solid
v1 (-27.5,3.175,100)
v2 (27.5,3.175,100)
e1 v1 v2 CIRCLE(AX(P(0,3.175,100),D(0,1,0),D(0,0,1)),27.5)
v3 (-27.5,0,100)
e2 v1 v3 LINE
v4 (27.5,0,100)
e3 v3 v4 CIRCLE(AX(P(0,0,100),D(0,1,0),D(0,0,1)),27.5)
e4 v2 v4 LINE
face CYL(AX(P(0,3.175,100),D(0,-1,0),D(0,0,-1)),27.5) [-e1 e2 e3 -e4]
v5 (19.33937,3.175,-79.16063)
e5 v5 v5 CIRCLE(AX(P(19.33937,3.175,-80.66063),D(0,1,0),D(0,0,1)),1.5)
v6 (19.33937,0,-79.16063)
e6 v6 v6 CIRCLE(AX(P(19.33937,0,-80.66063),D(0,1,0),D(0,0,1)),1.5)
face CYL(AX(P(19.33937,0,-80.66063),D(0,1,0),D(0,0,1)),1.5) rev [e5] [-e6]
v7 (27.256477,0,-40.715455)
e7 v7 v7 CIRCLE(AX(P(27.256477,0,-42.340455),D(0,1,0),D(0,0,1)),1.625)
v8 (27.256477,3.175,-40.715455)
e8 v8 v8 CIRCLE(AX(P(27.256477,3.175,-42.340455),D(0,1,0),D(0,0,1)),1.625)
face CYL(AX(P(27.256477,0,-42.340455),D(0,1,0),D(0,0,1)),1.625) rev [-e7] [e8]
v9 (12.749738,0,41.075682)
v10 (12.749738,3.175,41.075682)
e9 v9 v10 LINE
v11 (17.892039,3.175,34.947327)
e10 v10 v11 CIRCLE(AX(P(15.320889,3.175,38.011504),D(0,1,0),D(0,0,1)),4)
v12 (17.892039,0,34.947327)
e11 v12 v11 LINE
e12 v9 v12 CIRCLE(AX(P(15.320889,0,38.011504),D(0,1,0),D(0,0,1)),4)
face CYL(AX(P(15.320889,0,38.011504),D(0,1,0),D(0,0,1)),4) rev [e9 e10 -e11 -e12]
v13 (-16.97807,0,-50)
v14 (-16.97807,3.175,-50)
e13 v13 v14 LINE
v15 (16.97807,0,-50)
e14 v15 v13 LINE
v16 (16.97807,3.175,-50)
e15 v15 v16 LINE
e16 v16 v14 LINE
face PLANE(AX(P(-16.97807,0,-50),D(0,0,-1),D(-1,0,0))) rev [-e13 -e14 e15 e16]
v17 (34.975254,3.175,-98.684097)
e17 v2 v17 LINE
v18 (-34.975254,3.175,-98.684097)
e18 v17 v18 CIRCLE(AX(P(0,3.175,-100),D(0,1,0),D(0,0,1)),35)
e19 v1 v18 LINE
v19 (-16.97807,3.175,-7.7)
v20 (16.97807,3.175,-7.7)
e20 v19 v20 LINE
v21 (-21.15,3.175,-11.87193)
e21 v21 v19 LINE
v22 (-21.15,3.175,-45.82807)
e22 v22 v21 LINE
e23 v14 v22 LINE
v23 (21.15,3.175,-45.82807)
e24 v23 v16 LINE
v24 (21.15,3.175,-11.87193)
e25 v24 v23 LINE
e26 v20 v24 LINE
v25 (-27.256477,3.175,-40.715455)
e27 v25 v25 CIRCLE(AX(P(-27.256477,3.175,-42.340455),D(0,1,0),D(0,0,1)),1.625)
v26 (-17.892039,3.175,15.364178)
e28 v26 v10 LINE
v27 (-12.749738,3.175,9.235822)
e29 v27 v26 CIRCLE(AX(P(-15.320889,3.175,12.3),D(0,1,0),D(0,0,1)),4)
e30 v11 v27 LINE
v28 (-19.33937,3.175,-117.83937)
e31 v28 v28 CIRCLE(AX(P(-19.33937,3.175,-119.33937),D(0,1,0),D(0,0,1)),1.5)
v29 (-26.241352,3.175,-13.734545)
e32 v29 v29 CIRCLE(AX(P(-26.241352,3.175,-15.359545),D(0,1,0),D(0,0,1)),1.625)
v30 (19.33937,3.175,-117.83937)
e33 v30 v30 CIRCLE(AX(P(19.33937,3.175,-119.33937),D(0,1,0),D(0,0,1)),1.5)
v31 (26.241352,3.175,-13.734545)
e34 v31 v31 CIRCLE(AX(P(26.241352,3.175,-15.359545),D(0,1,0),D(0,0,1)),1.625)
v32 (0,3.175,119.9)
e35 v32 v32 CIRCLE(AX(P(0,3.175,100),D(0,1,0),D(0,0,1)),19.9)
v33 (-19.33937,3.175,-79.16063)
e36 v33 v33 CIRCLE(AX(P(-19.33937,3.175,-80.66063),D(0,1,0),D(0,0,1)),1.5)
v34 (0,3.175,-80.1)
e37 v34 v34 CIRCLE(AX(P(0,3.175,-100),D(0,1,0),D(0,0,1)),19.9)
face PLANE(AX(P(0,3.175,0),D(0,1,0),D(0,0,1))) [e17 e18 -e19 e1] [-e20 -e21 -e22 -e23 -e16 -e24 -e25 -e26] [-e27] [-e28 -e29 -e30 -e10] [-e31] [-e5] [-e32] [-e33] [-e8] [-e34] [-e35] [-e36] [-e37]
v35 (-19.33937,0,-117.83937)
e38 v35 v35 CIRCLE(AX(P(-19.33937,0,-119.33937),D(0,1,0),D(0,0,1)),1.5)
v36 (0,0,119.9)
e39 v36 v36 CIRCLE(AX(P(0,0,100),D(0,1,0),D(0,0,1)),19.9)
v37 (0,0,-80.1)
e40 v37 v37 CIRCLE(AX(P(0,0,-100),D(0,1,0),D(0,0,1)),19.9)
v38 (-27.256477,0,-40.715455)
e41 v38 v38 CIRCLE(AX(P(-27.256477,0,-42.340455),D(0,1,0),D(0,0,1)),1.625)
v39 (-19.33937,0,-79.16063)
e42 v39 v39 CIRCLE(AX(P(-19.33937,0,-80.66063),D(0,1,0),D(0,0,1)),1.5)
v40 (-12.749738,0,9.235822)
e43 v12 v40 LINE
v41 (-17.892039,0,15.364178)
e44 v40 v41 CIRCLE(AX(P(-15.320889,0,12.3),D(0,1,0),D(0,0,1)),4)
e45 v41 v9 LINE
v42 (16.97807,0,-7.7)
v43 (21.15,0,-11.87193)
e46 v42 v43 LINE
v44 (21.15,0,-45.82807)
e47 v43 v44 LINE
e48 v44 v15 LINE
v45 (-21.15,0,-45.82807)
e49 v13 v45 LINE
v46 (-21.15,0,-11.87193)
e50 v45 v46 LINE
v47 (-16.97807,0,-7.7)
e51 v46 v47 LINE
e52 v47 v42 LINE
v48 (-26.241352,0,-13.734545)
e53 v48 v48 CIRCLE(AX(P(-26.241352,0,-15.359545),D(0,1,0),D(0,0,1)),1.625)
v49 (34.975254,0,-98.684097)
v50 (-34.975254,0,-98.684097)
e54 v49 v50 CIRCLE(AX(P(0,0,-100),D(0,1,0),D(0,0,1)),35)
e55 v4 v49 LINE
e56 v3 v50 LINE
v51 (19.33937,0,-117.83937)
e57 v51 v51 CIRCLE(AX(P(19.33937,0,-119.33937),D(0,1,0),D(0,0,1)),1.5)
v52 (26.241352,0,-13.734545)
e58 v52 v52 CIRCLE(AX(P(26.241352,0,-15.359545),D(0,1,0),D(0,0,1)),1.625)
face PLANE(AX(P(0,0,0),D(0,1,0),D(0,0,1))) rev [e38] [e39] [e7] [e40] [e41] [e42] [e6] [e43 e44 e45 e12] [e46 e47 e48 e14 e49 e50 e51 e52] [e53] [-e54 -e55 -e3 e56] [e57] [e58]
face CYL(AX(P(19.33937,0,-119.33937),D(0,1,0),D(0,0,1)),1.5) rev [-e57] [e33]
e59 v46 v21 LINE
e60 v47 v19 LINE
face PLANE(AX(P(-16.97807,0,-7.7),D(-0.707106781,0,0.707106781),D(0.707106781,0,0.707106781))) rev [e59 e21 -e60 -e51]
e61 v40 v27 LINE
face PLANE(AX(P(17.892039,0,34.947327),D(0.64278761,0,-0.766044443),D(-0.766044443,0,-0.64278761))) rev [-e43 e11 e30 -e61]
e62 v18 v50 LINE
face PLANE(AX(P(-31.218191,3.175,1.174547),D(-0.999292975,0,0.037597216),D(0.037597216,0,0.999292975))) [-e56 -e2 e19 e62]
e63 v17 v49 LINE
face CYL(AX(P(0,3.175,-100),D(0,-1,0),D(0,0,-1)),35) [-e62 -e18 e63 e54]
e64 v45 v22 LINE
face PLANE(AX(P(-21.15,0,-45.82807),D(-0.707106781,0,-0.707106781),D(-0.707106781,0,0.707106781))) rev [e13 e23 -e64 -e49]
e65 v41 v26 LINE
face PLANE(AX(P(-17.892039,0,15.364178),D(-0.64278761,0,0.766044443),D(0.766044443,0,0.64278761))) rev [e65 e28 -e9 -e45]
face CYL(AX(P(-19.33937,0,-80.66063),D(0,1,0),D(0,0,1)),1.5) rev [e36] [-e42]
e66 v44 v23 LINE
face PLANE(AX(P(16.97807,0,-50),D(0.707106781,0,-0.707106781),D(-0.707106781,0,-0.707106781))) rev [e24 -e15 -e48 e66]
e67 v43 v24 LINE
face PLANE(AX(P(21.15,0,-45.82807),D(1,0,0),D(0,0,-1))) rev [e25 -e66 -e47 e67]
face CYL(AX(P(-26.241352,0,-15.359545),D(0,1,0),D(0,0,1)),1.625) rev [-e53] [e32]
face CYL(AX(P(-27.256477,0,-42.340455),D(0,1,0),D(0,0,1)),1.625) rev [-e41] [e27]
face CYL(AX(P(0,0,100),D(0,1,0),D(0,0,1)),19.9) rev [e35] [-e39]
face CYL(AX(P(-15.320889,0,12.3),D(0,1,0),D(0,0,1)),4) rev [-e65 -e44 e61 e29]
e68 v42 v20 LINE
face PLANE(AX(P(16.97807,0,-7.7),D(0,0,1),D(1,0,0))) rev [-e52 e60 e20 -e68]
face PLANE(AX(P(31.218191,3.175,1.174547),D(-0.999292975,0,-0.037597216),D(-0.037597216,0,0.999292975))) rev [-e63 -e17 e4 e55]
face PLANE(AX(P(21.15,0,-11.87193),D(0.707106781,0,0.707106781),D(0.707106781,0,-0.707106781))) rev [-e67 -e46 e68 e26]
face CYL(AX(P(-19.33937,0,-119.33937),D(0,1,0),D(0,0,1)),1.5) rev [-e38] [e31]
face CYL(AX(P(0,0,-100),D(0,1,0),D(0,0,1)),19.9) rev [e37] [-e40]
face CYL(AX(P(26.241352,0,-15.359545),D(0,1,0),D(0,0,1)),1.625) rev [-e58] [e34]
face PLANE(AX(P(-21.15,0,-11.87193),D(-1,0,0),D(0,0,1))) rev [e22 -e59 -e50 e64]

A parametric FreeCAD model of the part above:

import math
import FreeCAD as App
import Part
import Sketcher
from FreeCAD import Vector
Q = App.Units.Quantity


def add_polygon(sketch, points):
    """Adds a closed chain of lines whose ends are joined by coincident constraints."""
    first, n = sketch.GeometryCount, len(points)
    for a, b in zip(points, points[1:] + points[:1]):
        sketch.addGeometry(Part.LineSegment(App.Vector(*a, 0), App.Vector(*b, 0)), False)
    for i in range(n):
        sketch.addConstraint(Sketcher.Constraint("Coincident", first + i, 2, first + (i + 1) % n, 1))

doc = App.newDocument("Part")
body = doc.addObject("PartDesign::Body", "Body")

sketch1 = body.newObject("Sketcher::SketchObject", "Sketch")
sketch1.AttachmentSupport = (doc.getObject("XZ_Plane"), [""])
sketch1.MapMode = "FlatFace"
sketch1.addGeometry([
    Part.LineSegment(Vector(-35, -99, 0), Vector(-28, 100, 0)),
    Part.ArcOfCircle(Part.Circle(Vector(0, 100, 0), Vector(0, 0, 1), 28), math.radians(0), math.radians(180)),
    Part.LineSegment(Vector(28, 100, 0), Vector(35, -99, 0)),
    Part.ArcOfCircle(Part.Circle(Vector(0, -100, 0), Vector(0, 0, 1), 35), math.radians(178), math.radians(362)),
], False)
sketch1.addConstraint([
    Sketcher.Constraint("Coincident", 0, 2, 1, 2),
    Sketcher.Constraint("Coincident", 1, 1, 2, 1),
    Sketcher.Constraint("Tangent", 2, 2, 3, 2),
    Sketcher.Constraint("Tangent", 3, 1, 0, 1),
    Sketcher.Constraint("Symmetric", 1, 3, 3, 3, -1, 1),
    Sketcher.Constraint("Symmetric", 0, 2, 1, 1, -2),
    Sketcher.Constraint("Horizontal", 1, 3, 0, 2),
    Sketcher.Constraint("Radius", 3, 35.0),
    Sketcher.Constraint("Radius", 1, 27.5),
    Sketcher.Constraint("DistanceY", -1, 1, 1, 3, 100.0),
])
pad1 = body.newObject("PartDesign::Pad", "Pad")
pad1.Profile = sketch1
pad1.Length = 3.175
pad1.Reversed = True

sketch2 = body.newObject("Sketcher::SketchObject", "Sketch001")
sketch2.AttachmentSupport = (doc.getObject("XZ_Plane"), [""])
sketch2.MapMode = "FlatFace"
sketch2.AttachmentOffset = App.Placement(Vector(0, 0, -3.175), App.Rotation())
sketch2.addGeometry([
    Part.Circle(Vector(0, 100, 0), Vector(0, 0, 1), 20),
    Part.Circle(Vector(0, -100, 0), Vector(0, 0, 1), 20),
], False)
sketch2.addConstraint([
    Sketcher.Constraint("Equal", 0, 1),
    Sketcher.Constraint("Symmetric", 0, 3, 1, 3, -1, 1),
    Sketcher.Constraint("PointOnObject", 0, 3, -2),
    Sketcher.Constraint("Diameter", 0, 39.8),
    Sketcher.Constraint("DistanceY", -1, 1, 0, 3, 100.0),
])
pocket1 = body.newObject("PartDesign::Pocket", "Pocket")
pocket1.Profile = sketch2
pocket1.Type = "ThroughAll"
pocket1.Reversed = True

sketch3 = body.newObject("Sketcher::SketchObject", "Sketch002")
sketch3.AttachmentSupport = (doc.getObject("XZ_Plane"), [""])
sketch3.MapMode = "FlatFace"
sketch3.AttachmentOffset = App.Placement(Vector(0, 0, -3.175), App.Rotation())
sketch3.addGeometry([
    Part.Circle(Vector(19.3, -80.7, 0), Vector(0, 0, 1), 1.5),
    Part.Circle(Vector(19.3, -119.3, 0), Vector(0, 0, 1), 1.5),
    Part.Circle(Vector(-19.3, -119.3, 0), Vector(0, 0, 1), 1.5),
    Part.Circle(Vector(-19.3, -80.7, 0), Vector(0, 0, 1), 1.5),
], False)
sketch3.addConstraint([
    Sketcher.Constraint("Equal", 0, 1),
    Sketcher.Constraint("Equal", 1, 2),
    Sketcher.Constraint("Equal", 2, 3),
    Sketcher.Constraint("Symmetric", 1, 3, 2, 3, -2),
    Sketcher.Constraint("Symmetric", 0, 3, 3, 3, -2),
    Sketcher.Constraint("Vertical", 0, 3, 1, 3),
    Sketcher.Constraint("Diameter", 0, 3.0),
    Sketcher.Constraint("DistanceX", -1, 1, 0, 3, 19.33937),
    Sketcher.Constraint("DistanceY", 0, 3, -1, 1, 80.66063),
    Sketcher.Constraint("DistanceY", 1, 3, -1, 1, 119.33937),
])
pocket2 = body.newObject("PartDesign::Pocket", "Pocket001")
pocket2.Profile = sketch3
pocket2.Type = "ThroughAll"
pocket2.Reversed = True

sketch4 = body.newObject("Sketcher::SketchObject", "Sketch003")
sketch4.AttachmentSupport = (doc.getObject("XZ_Plane"), [""])
sketch4.MapMode = "FlatFace"
sketch4.AttachmentOffset = App.Placement(Vector(0, 0, -3.175), App.Rotation())
sketch4.addGeometry(Part.Circle(Vector(-27.3, -42.3, 0), Vector(0, 0, 1), 1.6), False)
sketch4.addGeometry(Part.Circle(Vector(-26.2, -15.4, 0), Vector(0, 0, 1), 1.6), False)
sketch4.addGeometry(Part.Circle(Vector(26.2, -15.4, 0), Vector(0, 0, 1), 1.6), False)
sketch4.addGeometry(Part.Circle(Vector(27.3, -42.3, 0), Vector(0, 0, 1), 1.6), False)
add_polygon(sketch4, [(-17, -50), (-21.1, -45.8), (-21.1, -11.9), (-17, -7.7), (17, -7.7), (21.1, -11.9), (21.1, -45.8), (17, -50)])
sketch4.addConstraint([
    Sketcher.Constraint("Vertical", 5),
    Sketcher.Constraint("Horizontal", 7),
    Sketcher.Constraint("Vertical", 9),
    Sketcher.Constraint("Horizontal", 11),
    Sketcher.Constraint("Equal", 0, 1),
    Sketcher.Constraint("Equal", 1, 2),
    Sketcher.Constraint("Equal", 2, 3),
    Sketcher.Constraint("Symmetric", 1, 3, 2, 3, -2),
    Sketcher.Constraint("Symmetric", 0, 3, 3, 3, -2),
    Sketcher.Constraint("Symmetric", 5, 2, 8, 2, -2),
    Sketcher.Constraint("Perpendicular", 4, 6),
    Sketcher.Constraint("Perpendicular", 6, 8),
    Sketcher.Constraint("Perpendicular", 8, 10),
    Sketcher.Constraint("Horizontal", 4, 2, 9, 2),
    Sketcher.Constraint("Vertical", 7, 2, 10, 2),
    Sketcher.Constraint("Vertical", 6, 2, 11, 2),
    Sketcher.Constraint("Equal", 11, 5),
    Sketcher.Constraint("Diameter", 0, 3.25),
    Sketcher.Constraint("DistanceY", 10, 2, -1, 1, 50.0),
    Sketcher.Constraint("Distance", 4, 5.9),
    Sketcher.Constraint("DistanceY", 6, 2, -1, 1, 7.7),
    Sketcher.Constraint("DistanceX", 1, 3, -1, 1, 26.241352),
    Sketcher.Constraint("DistanceY", 0, 3, 1, 3, 26.98091),
    Sketcher.Constraint("DistanceX", 0, 3, 2, 3, 53.497829),
    Sketcher.Constraint("DistanceY", 0, 3, -1, 1, 42.340455),
])
pocket3 = body.newObject("PartDesign::Pocket", "Pocket002")
pocket3.Profile = sketch4
pocket3.Type = "ThroughAll"
pocket3.Reversed = True

sketch5 = body.newObject("Sketcher::SketchObject", "Sketch004")
sketch5.AttachmentSupport = (doc.getObject("XZ_Plane"), [""])
sketch5.MapMode = "FlatFace"
sketch5.AttachmentOffset = App.Placement(Vector(0, 0, -3.175), App.Rotation())
sketch5.addGeometry([
    Part.LineSegment(Vector(17.9, 34.9, 0), Vector(-12.7, 9.2, 0)),
    Part.ArcOfCircle(Part.Circle(Vector(-15.3, 12.3, 0), Vector(0, 0, 1), 4), math.radians(130), math.radians(310)),
    Part.LineSegment(Vector(-17.9, 15.4, 0), Vector(12.7, 41.1, 0)),
    Part.ArcOfCircle(Part.Circle(Vector(15.3, 38, 0), Vector(0, 0, 1), 4), math.radians(-50), math.radians(130)),
], False)
sketch5.addConstraint([
    Sketcher.Constraint("Tangent", 0, 2, 1, 2),
    Sketcher.Constraint("Tangent", 1, 1, 2, 1),
    Sketcher.Constraint("Tangent", 2, 2, 3, 2),
    Sketcher.Constraint("Tangent", 3, 1, 0, 1),
    Sketcher.Constraint("Equal", 1, 3),
    Sketcher.Constraint("Radius", 1, 4.0),
    Sketcher.Constraint("Angle", 0, Q("-140 deg")),
    Sketcher.Constraint("Distance", 0, 40.0),
    Sketcher.Constraint("DistanceY", -1, 1, 1, 3, 12.3),
    Sketcher.Constraint("DistanceX", 1, 3, -1, 1, 15.320889),
])
pocket4 = body.newObject("PartDesign::Pocket", "Pocket003")
pocket4.Profile = sketch5
pocket4.Type = "ThroughAll"
pocket4.Reversed = True

doc.recompute()
